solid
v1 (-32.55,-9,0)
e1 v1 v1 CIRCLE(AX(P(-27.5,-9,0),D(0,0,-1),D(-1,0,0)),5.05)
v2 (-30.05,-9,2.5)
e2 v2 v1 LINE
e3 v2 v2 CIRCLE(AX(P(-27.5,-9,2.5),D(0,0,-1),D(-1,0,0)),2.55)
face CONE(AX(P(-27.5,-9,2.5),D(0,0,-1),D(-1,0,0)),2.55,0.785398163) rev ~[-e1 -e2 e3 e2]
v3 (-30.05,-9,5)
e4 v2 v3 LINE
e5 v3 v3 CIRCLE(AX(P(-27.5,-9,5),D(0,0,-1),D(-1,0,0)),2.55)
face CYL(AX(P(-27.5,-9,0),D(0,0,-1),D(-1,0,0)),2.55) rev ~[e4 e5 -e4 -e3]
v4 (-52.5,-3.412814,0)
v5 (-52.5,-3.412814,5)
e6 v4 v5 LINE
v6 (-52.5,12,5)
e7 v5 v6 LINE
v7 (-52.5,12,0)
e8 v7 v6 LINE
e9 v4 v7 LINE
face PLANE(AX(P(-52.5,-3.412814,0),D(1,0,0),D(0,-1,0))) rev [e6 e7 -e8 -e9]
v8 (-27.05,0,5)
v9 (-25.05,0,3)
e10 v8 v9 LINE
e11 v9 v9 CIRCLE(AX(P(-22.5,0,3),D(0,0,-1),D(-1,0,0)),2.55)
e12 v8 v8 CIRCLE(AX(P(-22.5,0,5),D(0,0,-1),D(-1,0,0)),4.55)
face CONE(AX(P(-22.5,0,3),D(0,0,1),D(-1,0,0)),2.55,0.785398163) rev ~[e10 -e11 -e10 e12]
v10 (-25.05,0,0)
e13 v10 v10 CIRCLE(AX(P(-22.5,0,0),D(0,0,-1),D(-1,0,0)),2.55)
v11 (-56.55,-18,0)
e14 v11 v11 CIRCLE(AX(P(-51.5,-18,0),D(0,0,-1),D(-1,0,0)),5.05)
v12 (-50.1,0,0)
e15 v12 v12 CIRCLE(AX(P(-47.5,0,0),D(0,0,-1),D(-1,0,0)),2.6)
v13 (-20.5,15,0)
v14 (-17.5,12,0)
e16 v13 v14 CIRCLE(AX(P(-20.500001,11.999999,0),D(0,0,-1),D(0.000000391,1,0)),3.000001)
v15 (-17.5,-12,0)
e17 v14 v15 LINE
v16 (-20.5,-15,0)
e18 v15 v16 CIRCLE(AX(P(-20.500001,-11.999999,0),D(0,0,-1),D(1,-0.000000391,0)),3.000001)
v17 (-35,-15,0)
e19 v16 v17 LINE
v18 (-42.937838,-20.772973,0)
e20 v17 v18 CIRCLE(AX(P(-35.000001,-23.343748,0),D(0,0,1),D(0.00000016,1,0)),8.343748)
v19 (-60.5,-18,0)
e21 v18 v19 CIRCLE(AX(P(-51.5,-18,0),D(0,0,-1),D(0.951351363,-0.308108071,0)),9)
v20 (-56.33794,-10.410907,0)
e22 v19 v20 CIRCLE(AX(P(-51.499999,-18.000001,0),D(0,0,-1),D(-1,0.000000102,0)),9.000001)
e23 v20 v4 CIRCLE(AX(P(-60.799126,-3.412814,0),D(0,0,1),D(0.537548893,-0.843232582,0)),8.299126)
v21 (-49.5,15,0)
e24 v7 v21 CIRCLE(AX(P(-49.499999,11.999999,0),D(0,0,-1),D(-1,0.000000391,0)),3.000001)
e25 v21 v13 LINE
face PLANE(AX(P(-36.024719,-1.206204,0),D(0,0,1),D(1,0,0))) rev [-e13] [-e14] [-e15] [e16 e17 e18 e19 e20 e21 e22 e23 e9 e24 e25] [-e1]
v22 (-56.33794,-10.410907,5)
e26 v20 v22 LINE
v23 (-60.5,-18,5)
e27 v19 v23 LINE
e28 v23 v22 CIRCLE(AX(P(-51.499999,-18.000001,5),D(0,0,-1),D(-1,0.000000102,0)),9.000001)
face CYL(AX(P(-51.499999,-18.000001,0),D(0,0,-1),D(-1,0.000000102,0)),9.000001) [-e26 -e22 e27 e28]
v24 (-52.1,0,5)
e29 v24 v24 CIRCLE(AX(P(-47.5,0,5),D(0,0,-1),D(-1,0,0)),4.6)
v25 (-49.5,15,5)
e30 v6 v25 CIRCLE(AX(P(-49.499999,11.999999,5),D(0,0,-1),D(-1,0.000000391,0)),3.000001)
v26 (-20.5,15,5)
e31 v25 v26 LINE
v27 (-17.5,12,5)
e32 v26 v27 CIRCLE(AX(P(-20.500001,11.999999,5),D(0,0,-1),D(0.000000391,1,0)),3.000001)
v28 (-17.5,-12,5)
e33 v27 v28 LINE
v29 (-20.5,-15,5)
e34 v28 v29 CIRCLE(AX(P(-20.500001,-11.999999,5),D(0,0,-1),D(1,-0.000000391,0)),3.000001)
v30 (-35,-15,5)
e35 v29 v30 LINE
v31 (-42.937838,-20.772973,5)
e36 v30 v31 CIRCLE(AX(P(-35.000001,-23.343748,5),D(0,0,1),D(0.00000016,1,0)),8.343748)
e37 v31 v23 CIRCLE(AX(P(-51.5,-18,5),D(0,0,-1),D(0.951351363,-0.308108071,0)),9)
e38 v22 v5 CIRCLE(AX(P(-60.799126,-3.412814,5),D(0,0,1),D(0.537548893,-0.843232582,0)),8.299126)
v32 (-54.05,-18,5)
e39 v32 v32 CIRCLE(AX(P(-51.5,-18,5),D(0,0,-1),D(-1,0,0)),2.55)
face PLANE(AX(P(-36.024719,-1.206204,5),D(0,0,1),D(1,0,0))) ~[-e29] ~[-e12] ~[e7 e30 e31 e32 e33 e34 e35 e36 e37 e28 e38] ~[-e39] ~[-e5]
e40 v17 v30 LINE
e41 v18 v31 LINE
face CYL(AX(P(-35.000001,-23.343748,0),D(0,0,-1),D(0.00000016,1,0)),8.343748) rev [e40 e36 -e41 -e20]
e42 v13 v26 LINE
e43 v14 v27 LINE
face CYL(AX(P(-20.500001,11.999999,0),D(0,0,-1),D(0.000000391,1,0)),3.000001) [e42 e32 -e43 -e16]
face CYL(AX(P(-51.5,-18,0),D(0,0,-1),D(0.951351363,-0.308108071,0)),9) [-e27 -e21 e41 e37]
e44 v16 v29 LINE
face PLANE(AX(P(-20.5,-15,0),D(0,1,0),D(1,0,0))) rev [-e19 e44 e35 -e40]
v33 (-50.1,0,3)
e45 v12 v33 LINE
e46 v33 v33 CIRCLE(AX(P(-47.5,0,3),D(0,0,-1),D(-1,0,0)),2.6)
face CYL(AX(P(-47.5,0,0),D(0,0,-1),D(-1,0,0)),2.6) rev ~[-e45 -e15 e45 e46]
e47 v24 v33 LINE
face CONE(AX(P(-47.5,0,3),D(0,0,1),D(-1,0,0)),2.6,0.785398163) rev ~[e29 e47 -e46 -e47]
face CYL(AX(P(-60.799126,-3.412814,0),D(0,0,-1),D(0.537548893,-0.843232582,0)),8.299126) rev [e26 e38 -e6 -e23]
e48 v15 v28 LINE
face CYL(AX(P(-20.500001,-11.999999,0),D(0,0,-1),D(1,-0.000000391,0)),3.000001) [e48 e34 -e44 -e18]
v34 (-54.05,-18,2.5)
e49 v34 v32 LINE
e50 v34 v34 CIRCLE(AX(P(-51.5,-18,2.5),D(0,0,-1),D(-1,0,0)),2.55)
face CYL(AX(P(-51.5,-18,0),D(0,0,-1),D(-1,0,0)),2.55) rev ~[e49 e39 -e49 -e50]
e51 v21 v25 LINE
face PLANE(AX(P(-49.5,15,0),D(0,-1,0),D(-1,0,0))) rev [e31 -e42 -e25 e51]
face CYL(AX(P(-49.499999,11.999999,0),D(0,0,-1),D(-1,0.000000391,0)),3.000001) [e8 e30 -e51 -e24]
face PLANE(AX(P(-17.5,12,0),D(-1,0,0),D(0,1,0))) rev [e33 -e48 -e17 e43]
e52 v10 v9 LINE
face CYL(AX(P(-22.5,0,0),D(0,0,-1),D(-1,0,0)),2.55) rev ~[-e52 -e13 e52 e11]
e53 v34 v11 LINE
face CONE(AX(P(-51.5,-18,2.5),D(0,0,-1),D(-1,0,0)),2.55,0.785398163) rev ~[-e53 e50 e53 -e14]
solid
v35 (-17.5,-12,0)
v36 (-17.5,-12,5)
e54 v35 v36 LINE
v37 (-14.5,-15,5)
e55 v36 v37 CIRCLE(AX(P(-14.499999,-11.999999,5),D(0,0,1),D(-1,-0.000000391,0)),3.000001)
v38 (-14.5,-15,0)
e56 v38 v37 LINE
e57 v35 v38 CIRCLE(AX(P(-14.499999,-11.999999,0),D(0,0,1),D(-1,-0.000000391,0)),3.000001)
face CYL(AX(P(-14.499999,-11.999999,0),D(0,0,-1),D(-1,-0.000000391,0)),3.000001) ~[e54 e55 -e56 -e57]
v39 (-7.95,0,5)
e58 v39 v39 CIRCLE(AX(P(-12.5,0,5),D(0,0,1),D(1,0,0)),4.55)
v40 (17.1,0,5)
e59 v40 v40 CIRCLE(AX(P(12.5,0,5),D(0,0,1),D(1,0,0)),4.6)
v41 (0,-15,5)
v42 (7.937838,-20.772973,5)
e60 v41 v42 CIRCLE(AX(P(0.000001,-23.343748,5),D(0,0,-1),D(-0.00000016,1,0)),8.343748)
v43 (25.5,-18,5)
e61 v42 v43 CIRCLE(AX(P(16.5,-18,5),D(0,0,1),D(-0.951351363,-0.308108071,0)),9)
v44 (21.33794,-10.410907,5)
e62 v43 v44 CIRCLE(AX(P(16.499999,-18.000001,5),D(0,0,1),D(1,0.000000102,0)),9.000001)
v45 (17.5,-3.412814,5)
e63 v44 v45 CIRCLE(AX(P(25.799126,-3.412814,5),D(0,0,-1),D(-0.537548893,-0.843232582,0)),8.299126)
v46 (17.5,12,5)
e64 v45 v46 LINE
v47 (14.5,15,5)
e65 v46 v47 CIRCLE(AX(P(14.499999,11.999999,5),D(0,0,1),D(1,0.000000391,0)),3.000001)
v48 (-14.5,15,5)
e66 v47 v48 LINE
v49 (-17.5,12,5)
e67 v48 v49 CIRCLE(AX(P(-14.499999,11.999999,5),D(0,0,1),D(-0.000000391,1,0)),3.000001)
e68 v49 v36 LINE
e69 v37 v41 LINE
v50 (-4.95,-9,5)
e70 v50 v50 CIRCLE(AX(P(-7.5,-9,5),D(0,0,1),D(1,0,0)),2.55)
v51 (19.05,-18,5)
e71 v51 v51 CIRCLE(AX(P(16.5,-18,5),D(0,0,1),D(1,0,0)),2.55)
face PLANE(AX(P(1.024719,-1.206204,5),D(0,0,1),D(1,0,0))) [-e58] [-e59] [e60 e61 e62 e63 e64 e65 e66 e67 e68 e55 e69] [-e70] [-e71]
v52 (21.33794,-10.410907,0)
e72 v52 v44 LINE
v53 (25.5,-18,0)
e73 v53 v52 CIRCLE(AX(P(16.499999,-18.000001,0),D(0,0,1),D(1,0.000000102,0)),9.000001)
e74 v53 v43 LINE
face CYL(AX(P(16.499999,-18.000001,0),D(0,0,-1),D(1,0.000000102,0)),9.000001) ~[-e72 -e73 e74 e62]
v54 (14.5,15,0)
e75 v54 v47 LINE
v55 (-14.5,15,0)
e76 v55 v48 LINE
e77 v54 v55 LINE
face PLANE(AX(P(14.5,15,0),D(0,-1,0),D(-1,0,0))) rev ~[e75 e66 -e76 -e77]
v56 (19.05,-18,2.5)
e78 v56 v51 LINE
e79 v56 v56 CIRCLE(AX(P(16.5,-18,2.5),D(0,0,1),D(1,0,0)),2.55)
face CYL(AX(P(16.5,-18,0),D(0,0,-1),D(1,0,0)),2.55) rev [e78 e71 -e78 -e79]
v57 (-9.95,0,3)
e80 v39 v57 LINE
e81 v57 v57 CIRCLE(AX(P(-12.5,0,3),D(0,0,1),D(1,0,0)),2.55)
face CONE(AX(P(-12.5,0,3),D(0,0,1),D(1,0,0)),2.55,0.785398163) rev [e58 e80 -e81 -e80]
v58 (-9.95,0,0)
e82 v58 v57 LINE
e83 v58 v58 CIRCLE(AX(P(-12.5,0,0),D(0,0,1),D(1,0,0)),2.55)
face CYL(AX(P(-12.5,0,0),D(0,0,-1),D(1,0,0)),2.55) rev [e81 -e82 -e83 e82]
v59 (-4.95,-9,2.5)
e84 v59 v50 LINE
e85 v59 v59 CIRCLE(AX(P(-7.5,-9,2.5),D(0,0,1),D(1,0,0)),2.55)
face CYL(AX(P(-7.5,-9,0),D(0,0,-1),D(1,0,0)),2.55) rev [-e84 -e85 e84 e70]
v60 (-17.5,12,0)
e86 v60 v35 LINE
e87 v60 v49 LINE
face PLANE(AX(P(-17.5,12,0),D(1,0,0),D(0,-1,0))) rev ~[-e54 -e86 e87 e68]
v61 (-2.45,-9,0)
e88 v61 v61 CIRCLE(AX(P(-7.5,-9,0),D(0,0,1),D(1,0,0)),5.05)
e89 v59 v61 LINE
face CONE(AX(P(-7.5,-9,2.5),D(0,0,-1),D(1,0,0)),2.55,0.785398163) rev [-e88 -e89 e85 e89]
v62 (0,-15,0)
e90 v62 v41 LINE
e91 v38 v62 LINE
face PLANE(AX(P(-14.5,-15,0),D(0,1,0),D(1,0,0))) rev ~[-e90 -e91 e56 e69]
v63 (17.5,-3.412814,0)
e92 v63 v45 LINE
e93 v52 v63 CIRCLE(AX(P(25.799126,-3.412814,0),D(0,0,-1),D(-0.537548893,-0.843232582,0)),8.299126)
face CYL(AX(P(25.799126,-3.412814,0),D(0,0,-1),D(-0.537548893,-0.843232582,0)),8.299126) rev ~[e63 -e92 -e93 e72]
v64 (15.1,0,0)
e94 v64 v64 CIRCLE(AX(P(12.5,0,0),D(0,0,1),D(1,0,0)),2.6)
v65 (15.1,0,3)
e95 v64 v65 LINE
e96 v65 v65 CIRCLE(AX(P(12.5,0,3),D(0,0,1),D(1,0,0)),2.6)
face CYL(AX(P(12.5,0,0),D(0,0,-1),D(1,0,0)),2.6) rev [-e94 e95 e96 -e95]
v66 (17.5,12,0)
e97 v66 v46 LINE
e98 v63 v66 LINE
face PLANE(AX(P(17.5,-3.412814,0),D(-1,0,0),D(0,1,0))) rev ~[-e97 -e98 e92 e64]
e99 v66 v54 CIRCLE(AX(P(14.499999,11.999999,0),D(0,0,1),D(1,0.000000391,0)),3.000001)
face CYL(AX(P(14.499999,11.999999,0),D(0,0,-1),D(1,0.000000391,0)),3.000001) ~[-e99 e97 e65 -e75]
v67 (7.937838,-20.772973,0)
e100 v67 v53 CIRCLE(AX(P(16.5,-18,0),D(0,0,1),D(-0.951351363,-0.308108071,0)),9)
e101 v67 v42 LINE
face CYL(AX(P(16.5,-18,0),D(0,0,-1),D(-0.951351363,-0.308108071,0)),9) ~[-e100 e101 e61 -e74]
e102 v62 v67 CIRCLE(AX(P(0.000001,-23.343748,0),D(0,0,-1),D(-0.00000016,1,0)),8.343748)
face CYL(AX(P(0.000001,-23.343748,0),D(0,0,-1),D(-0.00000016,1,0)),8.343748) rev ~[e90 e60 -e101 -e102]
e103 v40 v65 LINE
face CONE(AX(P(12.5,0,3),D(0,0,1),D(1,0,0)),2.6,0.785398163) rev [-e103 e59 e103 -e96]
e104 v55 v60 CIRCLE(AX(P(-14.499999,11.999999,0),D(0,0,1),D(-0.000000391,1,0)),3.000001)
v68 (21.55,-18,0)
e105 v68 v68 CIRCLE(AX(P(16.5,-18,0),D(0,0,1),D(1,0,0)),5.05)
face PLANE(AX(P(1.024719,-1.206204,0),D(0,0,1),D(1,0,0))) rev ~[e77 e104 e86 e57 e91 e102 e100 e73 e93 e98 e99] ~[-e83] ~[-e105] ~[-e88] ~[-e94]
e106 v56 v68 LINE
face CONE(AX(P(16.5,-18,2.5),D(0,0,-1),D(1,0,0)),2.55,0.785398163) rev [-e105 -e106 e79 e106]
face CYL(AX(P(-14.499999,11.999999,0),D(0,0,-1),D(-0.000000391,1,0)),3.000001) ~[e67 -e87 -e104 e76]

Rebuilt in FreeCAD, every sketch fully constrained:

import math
import FreeCAD as App
import Part
import Sketcher
Q = App.Units.Quantity


def edges_at(feature, points):
    """Names of the edges that pass closest to the given points."""
    edges = feature.Shape.Edges
    near = lambda p: min(range(len(edges)), key=lambda i: edges[i].distToShape(Part.Vertex(*p))[0])
    return sorted({f"Edge{near(p) + 1}" for p in points})

doc = App.newDocument("Part")
body = doc.addObject("PartDesign::Body", "Body")

# Sketch on XY plane
sketch1 = doc.addObject("Sketcher::SketchObject", "Sketch")
body.addObject(sketch1)
sketch1.AttachmentSupport = (doc.XY_Plane, [""])
sketch1.MapMode = "FlatFace"
sketch1.addGeometry([
    Part.LineSegment(App.Vector(-17.5, 12, 0), App.Vector(-17.5, -12, 0)),  # 0
    Part.ArcOfCircle(Part.Circle(App.Vector(-14.5, -12, 0), App.Vector(0, 0, 1), 3), math.radians(-180), math.radians(-90)),  # 1
    Part.LineSegment(App.Vector(-14.5, -15, 0), App.Vector(0, -15, 0)),  # 2
    Part.ArcOfCircle(Part.Circle(App.Vector(0, -23.3, 0), App.Vector(0, 0, 1), 8.3), math.radians(18), math.radians(90)),  # 3
    Part.ArcOfCircle(Part.Circle(App.Vector(16.5, -18, 0), App.Vector(0, 0, 1), 9), math.radians(-162), math.radians(0)),  # 4
    Part.ArcOfCircle(Part.Circle(App.Vector(16.5, -18, 0), App.Vector(0, 0, 1), 9), math.radians(0), math.radians(57)),  # 5
    Part.ArcOfCircle(Part.Circle(App.Vector(25.8, -3.4, 0), App.Vector(0, 0, 1), 8.3), math.radians(-180), math.radians(-123)),  # 6
    Part.LineSegment(App.Vector(17.5, -3.4, 0), App.Vector(17.5, 12, 0)),  # 7
    Part.ArcOfCircle(Part.Circle(App.Vector(14.5, 12, 0), App.Vector(0, 0, 1), 3), math.radians(0), math.radians(90)),  # 8
    Part.LineSegment(App.Vector(14.5, 15, 0), App.Vector(-14.5, 15, 0)),  # 9
    Part.ArcOfCircle(Part.Circle(App.Vector(-14.5, 12, 0), App.Vector(0, 0, 1), 3), math.radians(90), math.radians(180)),  # 10
    Part.Circle(App.Vector(-7.5, -9, 0), App.Vector(0, 0, 1), 2.5),  # 11
    Part.Circle(App.Vector(16.5, -18, 0), App.Vector(0, 0, 1), 2.5),  # 12
    Part.Circle(App.Vector(-12.5, 0, 0), App.Vector(0, 0, 1), 2.5),  # 13
    Part.Circle(App.Vector(12.5, 0, 0), App.Vector(0, 0, 1), 2.6),  # 14
], False)
sketch1.addConstraint([
    Sketcher.Constraint("Tangent", 0, 2, 1, 1),
    Sketcher.Constraint("Tangent", 1, 2, 2, 1),
    Sketcher.Constraint("Tangent", 2, 2, 3, 2),
    Sketcher.Constraint("Tangent", 3, 1, 4, 1),
    Sketcher.Constraint("Tangent", 4, 2, 5, 1),
    Sketcher.Constraint("Tangent", 5, 2, 6, 2),
    Sketcher.Constraint("Tangent", 6, 1, 7, 1),
    Sketcher.Constraint("Tangent", 7, 2, 8, 1),
    Sketcher.Constraint("Tangent", 8, 2, 9, 1),
    Sketcher.Constraint("Tangent", 9, 2, 10, 1),
    Sketcher.Constraint("Tangent", 10, 2, 0, 1),
    Sketcher.Constraint("Vertical", 0),
    Sketcher.Constraint("Horizontal", 2),
    Sketcher.Constraint("Vertical", 7),
    Sketcher.Constraint("Horizontal", 9),
    Sketcher.Constraint("Coincident", 12, 3, 4, 3),
    Sketcher.Constraint("Equal", 4, 5),
    Sketcher.Constraint("Equal", 1, 8),
    Sketcher.Constraint("Equal", 8, 10),
    Sketcher.Constraint("Equal", 11, 12),
    Sketcher.Constraint("Equal", 12, 13),
    Sketcher.Constraint("Symmetric", 1, 3, 8, 3, -1, 1),
    Sketcher.Constraint("Symmetric", 13, 3, 14, 3, -1, 1),
    Sketcher.Constraint("PointOnObject", 3, 3, -2),
    Sketcher.Constraint("PointOnObject", 13, 3, -1),
    Sketcher.Constraint("Horizontal", 12, 3, 4, 2),
    Sketcher.Constraint("Radius", 1, Q("3.000001 mm")),
    Sketcher.Constraint("Radius", 4, Q("9 mm")),
    Sketcher.Constraint("Diameter", 11, Q("5.1 mm")),
    Sketcher.Constraint("Diameter", 14, Q("5.2 mm")),
    Sketcher.Constraint("DistanceX", 9, 2, 9, 1, Q("29 mm")),
    Sketcher.Constraint("DistanceY", 0, 2, 0, 1, Q("24 mm")),
    Sketcher.Constraint("DistanceY", 4, 3, -1, 1, Q("18 mm")),
    Sketcher.Constraint("DistanceY", 11, 3, -1, 1, Q("9 mm")),
    Sketcher.Constraint("DistanceX", 1, 3, 4, 3, Q("30.999999 mm")),
    Sketcher.Constraint("DistanceX", 1, 3, 11, 3, Q("6.999999 mm")),
    Sketcher.Constraint("DistanceX", 13, 3, 11, 3, Q("5 mm")),
    Sketcher.Constraint("Radius", 6, Q("8.299126 mm")),
])
pad1 = doc.addObject("PartDesign::Pad", "Pad")
body.addObject(pad1)
pad1.Profile = sketch1
pad1.Length = 5
doc.recompute()

chamfer = doc.addObject("PartDesign::Chamfer", "Chamfer")
body.addObject(chamfer)
chamfer.Base = (pad1, edges_at(pad1, [(-10.05, -9, 0)]))
chamfer.Size = 2.5
doc.recompute()

chamfer2 = doc.addObject("PartDesign::Chamfer", "Chamfer001")
body.addObject(chamfer2)
chamfer2.Base = (chamfer, edges_at(chamfer, [(9.9, 0, 5), (-15.05, 0, 5)]))
chamfer2.Size = 2
doc.recompute()

chamfer3 = doc.addObject("PartDesign::Chamfer", "Chamfer002")
body.addObject(chamfer3)
chamfer3.Base = (chamfer2, edges_at(chamfer2, [(13.95, -18, 0)]))
chamfer3.Size = 2.5
body2 = doc.addObject("PartDesign::Body", "Body001")
doc.recompute()

mirroring = doc.addObject("Part::Mirroring", "Mirroring")
mirroring.Source = body
mirroring.Base = App.Vector(-17.5, 0, 2.5)
mirroring.Normal = App.Vector(-1, 0, 0)
body2.BaseFeature = mirroring
doc.recompute()
mirroring.Visibility = False

doc.recompute()
